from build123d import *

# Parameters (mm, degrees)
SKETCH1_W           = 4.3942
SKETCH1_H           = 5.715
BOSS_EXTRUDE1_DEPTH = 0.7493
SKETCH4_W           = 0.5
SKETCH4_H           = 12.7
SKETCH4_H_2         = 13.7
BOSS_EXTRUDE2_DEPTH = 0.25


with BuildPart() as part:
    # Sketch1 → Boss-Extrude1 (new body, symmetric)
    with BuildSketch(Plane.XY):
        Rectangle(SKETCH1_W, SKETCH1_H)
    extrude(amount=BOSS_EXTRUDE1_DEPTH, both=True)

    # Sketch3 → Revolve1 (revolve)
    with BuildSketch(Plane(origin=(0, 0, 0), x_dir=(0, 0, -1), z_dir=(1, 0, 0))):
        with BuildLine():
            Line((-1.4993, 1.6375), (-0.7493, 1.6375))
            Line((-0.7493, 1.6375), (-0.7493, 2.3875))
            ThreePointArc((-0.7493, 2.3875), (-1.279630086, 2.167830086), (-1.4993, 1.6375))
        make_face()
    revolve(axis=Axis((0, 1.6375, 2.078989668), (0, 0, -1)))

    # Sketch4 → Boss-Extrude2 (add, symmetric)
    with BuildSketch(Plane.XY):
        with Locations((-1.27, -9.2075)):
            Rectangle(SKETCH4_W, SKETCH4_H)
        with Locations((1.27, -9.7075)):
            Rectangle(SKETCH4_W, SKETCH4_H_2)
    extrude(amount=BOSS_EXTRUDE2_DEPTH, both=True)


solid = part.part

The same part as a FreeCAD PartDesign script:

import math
import FreeCAD as App
import Part
import Sketcher
from FreeCAD import Vector
Q = App.Units.Quantity


def add_polygon(sketch, points):
    """Adds a closed chain of lines whose ends are joined by coincident constraints."""
    first, n = sketch.GeometryCount, len(points)
    for a, b in zip(points, points[1:] + points[:1]):
        sketch.addGeometry(Part.LineSegment(App.Vector(*a, 0), App.Vector(*b, 0)), False)
    for i in range(n):
        sketch.addConstraint(Sketcher.Constraint("Coincident", first + i, 2, first + (i + 1) % n, 1))

doc = App.newDocument("Part")
body = doc.addObject("PartDesign::Body", "Body")

# Sketch on XY plane
sketch1 = body.newObject("Sketcher::SketchObject", "Sketch")
sketch1.AttachmentSupport = (doc.getObject("XY_Plane"), [""])
sketch1.MapMode = "FlatFace"
add_polygon(sketch1, [(-2.2, 2.9), (-2.2, -2.9), (2.2, -2.9), (2.2, 2.9)])  # lines 0-3
sketch1.addConstraint(Sketcher.Constraint("Vertical", 0))
sketch1.addConstraint(Sketcher.Constraint("Horizontal", 1))
sketch1.addConstraint(Sketcher.Constraint("Vertical", 2))
sketch1.addConstraint(Sketcher.Constraint("Horizontal", 3))
sketch1.addConstraint(Sketcher.Constraint("Symmetric", 0, 2, 2, 2, -1, 1))
sketch1.addConstraint(Sketcher.Constraint("DistanceY", 0, 2, 0, 1, Q("5.715 mm")))
sketch1.addConstraint(Sketcher.Constraint("DistanceX", 1, 1, 1, 2, Q("4.3942 mm")))
pad1 = body.newObject("PartDesign::Pad", "Pad")
pad1.Profile = sketch1
pad1.Length = 1.4986
pad1.Midplane = True

# Sketch on YZ plane
sketch2 = body.newObject("Sketcher::SketchObject", "Sketch001")
sketch2.AttachmentSupport = (doc.getObject("YZ_Plane"), [""])
sketch2.MapMode = "FlatFace"
sketch2.addGeometry(Part.LineSegment(Vector(1.6, 1.5, 0), Vector(1.6, 0.7, 0)), False)
sketch2.addGeometry(Part.LineSegment(Vector(1.6, 0.7, 0), Vector(2.4, 0.7, 0)), False)
sketch2.addGeometry(Part.ArcOfCircle(Part.Circle(Vector(1.6, 0.7, 0), Vector(0, 0, 1), 0.8), math.radians(0), math.radians(90)), False)
sketch2.addGeometry(Part.LineSegment(Vector(1.6, 1.5, 0), Vector(1.6, 0.7, 0)), True)  # axis
sketch2.addConstraint(Sketcher.Constraint("Coincident", 0, 2, 1, 1))
sketch2.addConstraint(Sketcher.Constraint("Coincident", 1, 2, 2, 1))
sketch2.addConstraint(Sketcher.Constraint("Coincident", 2, 2, 0, 1))
sketch2.addConstraint(Sketcher.Constraint("Vertical", 0))
sketch2.addConstraint(Sketcher.Constraint("Horizontal", 1))
sketch2.addConstraint(Sketcher.Constraint("Vertical", 3))
sketch2.addConstraint(Sketcher.Constraint("Coincident", 0, 2, 2, 3))
sketch2.addConstraint(Sketcher.Constraint("Coincident", 3, 1, 2, 2))
sketch2.addConstraint(Sketcher.Constraint("Horizontal", 1, 2, 3, 2))
sketch2.addConstraint(Sketcher.Constraint("Radius", 2, Q("0.75 mm")))
sketch2.addConstraint(Sketcher.Constraint("DistanceX", -1, 1, 2, 3, Q("1.6375 mm")))
sketch2.addConstraint(Sketcher.Constraint("DistanceY", -1, 1, 2, 3, Q("0.7493 mm")))
revolution = body.newObject("PartDesign::Revolution", "Revolution")
revolution.Profile = sketch2
revolution.ReferenceAxis = (sketch2, ["Axis0"])
revolution.Angle = 360

# Sketch on XY plane
sketch3 = body.newObject("Sketcher::SketchObject", "Sketch002")
sketch3.AttachmentSupport = (doc.getObject("XY_Plane"), [""])
sketch3.MapMode = "FlatFace"
add_polygon(sketch3, [(-1.5, -2.9), (-1.5, -15.6), (-1, -15.6), (-1, -2.9)])  # lines 0-3
add_polygon(sketch3, [(1, -2.9), (1, -16.6), (1.5, -16.6), (1.5, -2.9)])  # lines 4-7
sketch3.addConstraint(Sketcher.Constraint("Vertical", 0))
sketch3.addConstraint(Sketcher.Constraint("Horizontal", 1))
sketch3.addConstraint(Sketcher.Constraint("Vertical", 2))
sketch3.addConstraint(Sketcher.Constraint("Horizontal", 3))
sketch3.addConstraint(Sketcher.Constraint("Vertical", 4))
sketch3.addConstraint(Sketcher.Constraint("Horizontal", 5))
sketch3.addConstraint(Sketcher.Constraint("Vertical", 6))
sketch3.addConstraint(Sketcher.Constraint("Horizontal", 7))
sketch3.addConstraint(Sketcher.Constraint("Symmetric", 3, 2, 6, 2, -2))
sketch3.addConstraint(Sketcher.Constraint("Equal", 3, 5))
sketch3.addConstraint(Sketcher.Constraint("DistanceX", 1, 1, 1, 2, Q("0.5 mm")))
sketch3.addConstraint(Sketcher.Constraint("DistanceY", 0, 2, 0, 1, Q("12.7 mm")))
sketch3.addConstraint(Sketcher.Constraint("DistanceY", 4, 2, 4, 1, Q("13.7 mm")))
sketch3.addConstraint(Sketcher.Constraint("DistanceX", 0, 2, -1, 1, Q("1.52 mm")))
sketch3.addConstraint(Sketcher.Constraint("DistanceY", 0, 2, -1, 1, Q("15.5575 mm")))
pad2 = body.newObject("PartDesign::Pad", "Pad001")
pad2.Profile = sketch3
pad2.Length = 0.5
pad2.Midplane = True

doc.recompute()
